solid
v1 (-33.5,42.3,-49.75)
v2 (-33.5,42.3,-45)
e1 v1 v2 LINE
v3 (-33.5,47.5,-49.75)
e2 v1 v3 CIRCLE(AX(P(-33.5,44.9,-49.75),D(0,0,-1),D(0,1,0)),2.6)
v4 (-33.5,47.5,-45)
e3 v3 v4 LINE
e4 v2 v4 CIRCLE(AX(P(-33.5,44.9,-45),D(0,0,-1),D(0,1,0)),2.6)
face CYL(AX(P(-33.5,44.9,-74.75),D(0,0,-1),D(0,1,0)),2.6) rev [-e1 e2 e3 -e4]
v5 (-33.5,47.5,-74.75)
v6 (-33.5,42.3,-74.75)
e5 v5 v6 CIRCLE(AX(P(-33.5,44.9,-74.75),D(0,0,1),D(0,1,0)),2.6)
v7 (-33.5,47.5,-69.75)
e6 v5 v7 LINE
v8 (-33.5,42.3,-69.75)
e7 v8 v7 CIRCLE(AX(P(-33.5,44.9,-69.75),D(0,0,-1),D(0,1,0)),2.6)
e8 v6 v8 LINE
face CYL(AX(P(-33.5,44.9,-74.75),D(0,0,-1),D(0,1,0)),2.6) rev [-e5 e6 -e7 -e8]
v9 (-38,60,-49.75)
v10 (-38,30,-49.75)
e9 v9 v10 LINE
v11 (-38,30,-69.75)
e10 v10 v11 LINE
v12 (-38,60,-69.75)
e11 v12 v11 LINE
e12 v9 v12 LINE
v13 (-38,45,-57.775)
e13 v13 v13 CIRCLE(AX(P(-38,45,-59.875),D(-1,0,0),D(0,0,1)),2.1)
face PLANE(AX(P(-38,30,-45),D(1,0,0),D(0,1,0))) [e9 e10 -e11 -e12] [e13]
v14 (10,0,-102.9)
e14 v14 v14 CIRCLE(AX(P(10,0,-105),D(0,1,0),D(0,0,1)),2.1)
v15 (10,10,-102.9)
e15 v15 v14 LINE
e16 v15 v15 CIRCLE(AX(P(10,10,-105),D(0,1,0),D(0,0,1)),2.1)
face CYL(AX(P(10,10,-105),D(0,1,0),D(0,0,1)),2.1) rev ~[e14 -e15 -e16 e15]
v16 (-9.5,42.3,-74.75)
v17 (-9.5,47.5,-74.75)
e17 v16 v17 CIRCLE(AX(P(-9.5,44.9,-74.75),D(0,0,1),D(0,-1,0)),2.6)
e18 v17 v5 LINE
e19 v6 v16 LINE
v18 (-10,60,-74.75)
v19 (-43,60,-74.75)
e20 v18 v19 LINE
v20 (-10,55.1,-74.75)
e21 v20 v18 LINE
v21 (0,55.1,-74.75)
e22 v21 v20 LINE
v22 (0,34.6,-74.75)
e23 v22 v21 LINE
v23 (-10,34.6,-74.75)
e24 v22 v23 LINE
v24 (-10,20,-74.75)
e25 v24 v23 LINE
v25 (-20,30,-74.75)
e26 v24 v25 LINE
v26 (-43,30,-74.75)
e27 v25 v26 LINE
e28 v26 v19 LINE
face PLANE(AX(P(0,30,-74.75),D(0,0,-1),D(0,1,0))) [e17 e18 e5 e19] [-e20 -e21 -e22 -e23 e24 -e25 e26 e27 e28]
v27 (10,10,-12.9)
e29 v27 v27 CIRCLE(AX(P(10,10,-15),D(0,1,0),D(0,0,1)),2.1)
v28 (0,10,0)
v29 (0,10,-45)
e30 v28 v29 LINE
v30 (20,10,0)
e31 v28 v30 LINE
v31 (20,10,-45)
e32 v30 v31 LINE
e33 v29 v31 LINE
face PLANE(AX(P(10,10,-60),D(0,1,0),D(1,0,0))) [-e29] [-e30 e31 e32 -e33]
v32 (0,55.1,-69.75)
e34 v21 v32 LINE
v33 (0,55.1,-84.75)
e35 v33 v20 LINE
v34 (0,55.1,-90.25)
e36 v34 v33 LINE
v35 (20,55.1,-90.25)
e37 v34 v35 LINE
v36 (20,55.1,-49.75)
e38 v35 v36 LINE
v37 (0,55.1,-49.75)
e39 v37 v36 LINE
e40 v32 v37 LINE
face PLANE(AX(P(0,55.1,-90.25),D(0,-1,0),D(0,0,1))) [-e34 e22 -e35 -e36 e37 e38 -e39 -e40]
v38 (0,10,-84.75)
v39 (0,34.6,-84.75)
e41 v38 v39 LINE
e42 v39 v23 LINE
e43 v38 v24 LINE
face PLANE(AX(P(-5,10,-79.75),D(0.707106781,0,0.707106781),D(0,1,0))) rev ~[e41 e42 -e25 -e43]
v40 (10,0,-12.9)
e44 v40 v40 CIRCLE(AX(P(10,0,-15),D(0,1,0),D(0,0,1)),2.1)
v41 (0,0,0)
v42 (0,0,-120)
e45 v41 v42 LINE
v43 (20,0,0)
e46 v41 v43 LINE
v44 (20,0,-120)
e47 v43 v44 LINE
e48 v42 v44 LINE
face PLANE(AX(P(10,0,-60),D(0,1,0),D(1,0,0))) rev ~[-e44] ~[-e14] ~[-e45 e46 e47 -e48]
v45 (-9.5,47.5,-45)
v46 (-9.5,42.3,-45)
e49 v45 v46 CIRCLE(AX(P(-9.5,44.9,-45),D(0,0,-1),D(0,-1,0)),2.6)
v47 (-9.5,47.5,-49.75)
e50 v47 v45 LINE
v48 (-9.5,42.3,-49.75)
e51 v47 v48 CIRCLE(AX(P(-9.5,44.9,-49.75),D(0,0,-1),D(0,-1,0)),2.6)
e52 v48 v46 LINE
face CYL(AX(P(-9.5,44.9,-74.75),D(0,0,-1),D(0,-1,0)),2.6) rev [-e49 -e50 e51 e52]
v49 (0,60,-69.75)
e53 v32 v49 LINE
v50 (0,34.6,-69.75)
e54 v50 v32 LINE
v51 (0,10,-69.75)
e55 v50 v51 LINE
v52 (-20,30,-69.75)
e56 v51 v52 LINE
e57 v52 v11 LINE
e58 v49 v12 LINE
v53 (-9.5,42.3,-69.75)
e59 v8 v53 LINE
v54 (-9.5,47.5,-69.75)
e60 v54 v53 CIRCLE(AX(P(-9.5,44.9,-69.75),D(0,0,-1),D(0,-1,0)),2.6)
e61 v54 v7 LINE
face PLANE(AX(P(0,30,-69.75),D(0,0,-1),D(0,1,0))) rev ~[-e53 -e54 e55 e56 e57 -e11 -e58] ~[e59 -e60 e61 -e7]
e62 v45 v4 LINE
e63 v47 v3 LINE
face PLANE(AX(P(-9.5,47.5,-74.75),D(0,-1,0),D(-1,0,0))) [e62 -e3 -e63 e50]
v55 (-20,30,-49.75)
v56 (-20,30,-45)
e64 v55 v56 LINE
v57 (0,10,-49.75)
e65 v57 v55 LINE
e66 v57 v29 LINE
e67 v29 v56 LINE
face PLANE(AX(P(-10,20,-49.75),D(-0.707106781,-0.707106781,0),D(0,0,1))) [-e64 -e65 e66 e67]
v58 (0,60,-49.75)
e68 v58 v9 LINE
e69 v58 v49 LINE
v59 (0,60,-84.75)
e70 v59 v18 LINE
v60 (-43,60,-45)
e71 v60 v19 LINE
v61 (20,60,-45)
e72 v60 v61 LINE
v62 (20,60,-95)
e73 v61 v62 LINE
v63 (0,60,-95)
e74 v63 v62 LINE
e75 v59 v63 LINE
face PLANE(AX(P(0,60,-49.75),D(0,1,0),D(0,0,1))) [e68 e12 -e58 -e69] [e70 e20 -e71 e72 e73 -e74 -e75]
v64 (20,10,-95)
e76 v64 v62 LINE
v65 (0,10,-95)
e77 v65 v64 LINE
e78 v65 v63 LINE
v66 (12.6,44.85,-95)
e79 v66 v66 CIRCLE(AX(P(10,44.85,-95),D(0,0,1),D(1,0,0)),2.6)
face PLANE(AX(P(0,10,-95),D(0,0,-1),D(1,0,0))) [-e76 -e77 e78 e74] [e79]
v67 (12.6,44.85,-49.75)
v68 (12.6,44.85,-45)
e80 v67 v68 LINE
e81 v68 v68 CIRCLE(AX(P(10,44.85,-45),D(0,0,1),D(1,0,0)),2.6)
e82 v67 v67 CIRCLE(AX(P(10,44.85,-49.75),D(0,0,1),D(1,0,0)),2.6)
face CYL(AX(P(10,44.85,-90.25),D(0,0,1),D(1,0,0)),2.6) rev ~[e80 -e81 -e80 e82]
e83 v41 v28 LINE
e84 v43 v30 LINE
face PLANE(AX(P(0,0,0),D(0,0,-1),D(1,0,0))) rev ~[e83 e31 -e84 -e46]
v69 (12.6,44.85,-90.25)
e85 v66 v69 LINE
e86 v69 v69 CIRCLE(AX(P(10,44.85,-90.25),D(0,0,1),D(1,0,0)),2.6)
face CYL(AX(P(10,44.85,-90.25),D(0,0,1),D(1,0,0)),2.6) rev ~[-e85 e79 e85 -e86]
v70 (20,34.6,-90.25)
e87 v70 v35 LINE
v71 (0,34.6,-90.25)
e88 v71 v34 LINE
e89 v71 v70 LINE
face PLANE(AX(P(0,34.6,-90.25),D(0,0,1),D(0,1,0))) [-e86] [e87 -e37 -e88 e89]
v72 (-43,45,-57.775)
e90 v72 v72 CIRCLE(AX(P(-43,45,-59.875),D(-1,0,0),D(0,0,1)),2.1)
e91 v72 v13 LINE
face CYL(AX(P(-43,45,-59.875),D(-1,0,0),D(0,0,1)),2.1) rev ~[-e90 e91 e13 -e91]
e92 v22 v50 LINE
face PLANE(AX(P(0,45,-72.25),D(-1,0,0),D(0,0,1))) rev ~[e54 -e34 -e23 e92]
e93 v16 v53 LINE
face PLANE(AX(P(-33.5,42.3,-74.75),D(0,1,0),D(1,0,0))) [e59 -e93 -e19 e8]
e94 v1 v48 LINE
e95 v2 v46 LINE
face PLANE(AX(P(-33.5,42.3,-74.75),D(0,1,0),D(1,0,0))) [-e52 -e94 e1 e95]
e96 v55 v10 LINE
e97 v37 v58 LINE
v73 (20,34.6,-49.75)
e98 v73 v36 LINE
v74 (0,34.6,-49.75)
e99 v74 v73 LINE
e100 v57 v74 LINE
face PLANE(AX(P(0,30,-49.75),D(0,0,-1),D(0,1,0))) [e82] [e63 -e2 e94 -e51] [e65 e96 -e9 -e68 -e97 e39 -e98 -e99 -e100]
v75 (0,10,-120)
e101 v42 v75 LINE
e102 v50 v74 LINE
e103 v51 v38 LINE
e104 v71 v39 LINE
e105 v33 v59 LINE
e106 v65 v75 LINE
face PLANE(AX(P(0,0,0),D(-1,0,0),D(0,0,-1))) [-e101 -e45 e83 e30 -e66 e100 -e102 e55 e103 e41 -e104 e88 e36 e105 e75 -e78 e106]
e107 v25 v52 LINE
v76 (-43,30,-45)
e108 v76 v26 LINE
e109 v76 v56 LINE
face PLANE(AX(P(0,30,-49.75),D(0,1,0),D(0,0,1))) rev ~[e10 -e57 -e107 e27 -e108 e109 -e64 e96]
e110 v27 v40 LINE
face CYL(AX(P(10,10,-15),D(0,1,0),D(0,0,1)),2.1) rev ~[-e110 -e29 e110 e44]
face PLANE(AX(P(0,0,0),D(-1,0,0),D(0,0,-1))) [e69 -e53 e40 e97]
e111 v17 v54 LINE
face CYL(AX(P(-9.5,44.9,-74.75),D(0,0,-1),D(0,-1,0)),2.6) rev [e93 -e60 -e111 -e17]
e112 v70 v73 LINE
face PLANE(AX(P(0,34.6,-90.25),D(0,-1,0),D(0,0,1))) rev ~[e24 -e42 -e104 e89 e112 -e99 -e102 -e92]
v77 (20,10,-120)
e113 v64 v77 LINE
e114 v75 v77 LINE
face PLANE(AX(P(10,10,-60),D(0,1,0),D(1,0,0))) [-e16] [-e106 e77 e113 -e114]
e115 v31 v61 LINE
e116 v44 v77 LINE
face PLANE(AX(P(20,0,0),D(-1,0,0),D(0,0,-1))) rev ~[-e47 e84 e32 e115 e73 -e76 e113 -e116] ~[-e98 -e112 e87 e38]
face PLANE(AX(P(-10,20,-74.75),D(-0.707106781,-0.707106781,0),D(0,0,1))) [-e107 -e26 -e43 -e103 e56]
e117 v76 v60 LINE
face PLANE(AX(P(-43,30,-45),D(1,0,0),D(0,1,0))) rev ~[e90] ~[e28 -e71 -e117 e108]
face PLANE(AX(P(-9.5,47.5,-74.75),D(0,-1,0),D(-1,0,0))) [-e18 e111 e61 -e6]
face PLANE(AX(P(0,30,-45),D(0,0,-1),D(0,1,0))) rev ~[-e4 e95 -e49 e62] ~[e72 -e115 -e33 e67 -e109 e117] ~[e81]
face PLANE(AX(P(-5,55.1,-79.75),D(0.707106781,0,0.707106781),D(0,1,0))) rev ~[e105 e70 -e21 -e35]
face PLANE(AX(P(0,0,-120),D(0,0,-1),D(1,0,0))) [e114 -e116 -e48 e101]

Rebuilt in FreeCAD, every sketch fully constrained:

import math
import FreeCAD as App
import Part
import Sketcher
from FreeCAD import Vector


def edges_at(feature, points):
    """Names of the edges that pass closest to the given points."""
    edges = feature.Shape.Edges
    near = lambda p: min(range(len(edges)), key=lambda i: edges[i].distToShape(Part.Vertex(*p))[0])
    return sorted({f"Edge{near(p) + 1}" for p in points})

doc = App.newDocument("Part")
body = doc.addObject("PartDesign::Body", "Body")

# Sketch on XZ plane
sketch1 = body.newObject("Sketcher::SketchObject", "Sketch")
sketch1.AttachmentSupport = (doc.getObject("XZ_Plane"), [""])
sketch1.MapMode = "FlatFace"
sketch1.addGeometry([
    Part.LineSegment(Vector(0, -120, 0), Vector(0, 0, 0)),
    Part.LineSegment(Vector(0, 0, 0), Vector(20, 0, 0)),
    Part.LineSegment(Vector(20, 0, 0), Vector(20, -120, 0)),
    Part.LineSegment(Vector(20, -120, 0), Vector(0, -120, 0)),
], False)
sketch1.addConstraint([
    Sketcher.Constraint("Coincident", 0, 2, 1, 1),
    Sketcher.Constraint("Coincident", 1, 2, 2, 1),
    Sketcher.Constraint("Coincident", 2, 2, 3, 1),
    Sketcher.Constraint("Coincident", 3, 2, 0, 1),
    Sketcher.Constraint("Vertical", 0),
    Sketcher.Constraint("Horizontal", 1),
    Sketcher.Constraint("Vertical", 2),
    Sketcher.Constraint("Horizontal", 3),
    Sketcher.Constraint("Coincident", 0, 2, -1, 1),
    Sketcher.Constraint("DistanceX", 1, 1, 1, 2, 20.0),
    Sketcher.Constraint("DistanceY", 0, 1, 0, 2, 120.0),
])
pad1 = body.newObject("PartDesign::Pad", "Pad")
pad1.Profile = sketch1
pad1.Length = 10
pad1.Reversed = True

# Sketch on XZ plane
sketch2 = body.newObject("Sketcher::SketchObject", "Sketch001")
sketch2.AttachmentSupport = (doc.getObject("XZ_Plane"), [""])
sketch2.MapMode = "FlatFace"
sketch2.AttachmentOffset = App.Placement(Vector(0, 0, -10), App.Rotation())
sketch2.addGeometry([
    Part.Circle(Vector(10, -105, 0), Vector(0, 0, 1), 2.1),
    Part.Circle(Vector(10, -15, 0), Vector(0, 0, 1), 2.1),
], False)
sketch2.addConstraint([
    Sketcher.Constraint("Equal", 0, 1),
    Sketcher.Constraint("Vertical", 0, 3, 1, 3),
    Sketcher.Constraint("Diameter", 0, 4.2),
    Sketcher.Constraint("DistanceX", -1, 1, 0, 3, 10.0),
    Sketcher.Constraint("DistanceY", 0, 3, -1, 1, 105.0),
    Sketcher.Constraint("DistanceY", 1, 3, -1, 1, 15.0),
])
pocket1 = body.newObject("PartDesign::Pocket", "Pocket")
pocket1.Profile = sketch2
pocket1.Length = 10
pocket1.Reversed = True

# Sketch on XZ plane
sketch3 = body.newObject("Sketcher::SketchObject", "Sketch002")
sketch3.AttachmentSupport = (doc.getObject("XZ_Plane"), [""])
sketch3.MapMode = "FlatFace"
sketch3.AttachmentOffset = App.Placement(Vector(0, 0, -10), App.Rotation())
sketch3.addGeometry([
    Part.LineSegment(Vector(0, -95, 0), Vector(0, -45, 0)),
    Part.LineSegment(Vector(0, -45, 0), Vector(20, -45, 0)),
    Part.LineSegment(Vector(20, -45, 0), Vector(20, -95, 0)),
    Part.LineSegment(Vector(20, -95, 0), Vector(0, -95, 0)),
], False)
sketch3.addConstraint([
    Sketcher.Constraint("Coincident", 0, 2, 1, 1),
    Sketcher.Constraint("Coincident", 1, 2, 2, 1),
    Sketcher.Constraint("Coincident", 2, 2, 3, 1),
    Sketcher.Constraint("Coincident", 3, 2, 0, 1),
    Sketcher.Constraint("Vertical", 0),
    Sketcher.Constraint("Horizontal", 1),
    Sketcher.Constraint("Vertical", 2),
    Sketcher.Constraint("Horizontal", 3),
    Sketcher.Constraint("PointOnObject", 0, 2, -2),
    Sketcher.Constraint("DistanceX", 1, 1, 1, 2, 20.0),
    Sketcher.Constraint("DistanceY", 0, 1, 0, 2, 50.0),
    Sketcher.Constraint("DistanceY", 0, 2, -1, 1, 45.0),
])
pad2 = body.newObject("PartDesign::Pad", "Pad001")
pad2.Profile = sketch3
pad2.Length = 50
pad2.Reversed = True

# Sketch on YZ plane
sketch4 = body.newObject("Sketcher::SketchObject", "Sketch003")
sketch4.AttachmentSupport = (doc.getObject("YZ_Plane"), [""])
sketch4.MapMode = "FlatFace"
sketch4.addGeometry([
    Part.LineSegment(Vector(55, -90, 0), Vector(35, -90, 0)),
    Part.LineSegment(Vector(35, -90, 0), Vector(35, -50, 0)),
    Part.LineSegment(Vector(35, -50, 0), Vector(55, -50, 0)),
    Part.LineSegment(Vector(55, -50, 0), Vector(55, -90, 0)),
], False)
sketch4.addConstraint([
    Sketcher.Constraint("Coincident", 0, 2, 1, 1),
    Sketcher.Constraint("Coincident", 1, 2, 2, 1),
    Sketcher.Constraint("Coincident", 2, 2, 3, 1),
    Sketcher.Constraint("Coincident", 3, 2, 0, 1),
    Sketcher.Constraint("Horizontal", 0),
    Sketcher.Constraint("Vertical", 1),
    Sketcher.Constraint("Horizontal", 2),
    Sketcher.Constraint("Vertical", 3),
    Sketcher.Constraint("DistanceX", 0, 2, 0, 1, 20.5),
    Sketcher.Constraint("DistanceY", 1, 1, 1, 2, 40.5),
    Sketcher.Constraint("DistanceX", -1, 1, 0, 2, 34.6),
    Sketcher.Constraint("DistanceY", 0, 2, -1, 1, 90.25),
])
pocket2 = body.newObject("PartDesign::Pocket", "Pocket001")
pocket2.Profile = sketch4
pocket2.Length = 20
pocket2.Reversed = True

# Sketch on XY plane
sketch5 = body.newObject("Sketcher::SketchObject", "Sketch004")
sketch5.AttachmentSupport = (doc.getObject("XY_Plane"), [""])
sketch5.MapMode = "FlatFace"
sketch5.AttachmentOffset = App.Placement(Vector(0, 0, -90.25), App.Rotation())
sketch5.addGeometry(Part.Circle(Vector(10, 44.9, 0), Vector(0, 0, 1), 2.6), False)
sketch5.addConstraint([
    Sketcher.Constraint("Diameter", 0, 5.2),
    Sketcher.Constraint("DistanceX", -1, 1, 0, 3, 10.0),
    Sketcher.Constraint("DistanceY", -1, 1, 0, 3, 44.85),
])
pocket3 = body.newObject("PartDesign::Pocket", "Pocket002")
pocket3.Profile = sketch5
pocket3.Length = 100
pocket3.Midplane = True

# Sketch on YZ plane
sketch6 = body.newObject("Sketcher::SketchObject", "Sketch005")
sketch6.AttachmentSupport = (doc.getObject("YZ_Plane"), [""])
sketch6.MapMode = "FlatFace"
sketch6.addGeometry([
    Part.LineSegment(Vector(60, -49.8, 0), Vector(30, -49.8, 0)),  # 0
    Part.LineSegment(Vector(30, -49.8, 0), Vector(30, -45, 0)),  # 1
    Part.LineSegment(Vector(30, -45, 0), Vector(60, -45, 0)),  # 2
    Part.LineSegment(Vector(60, -45, 0), Vector(60, -49.8, 0)),  # 3
    Part.LineSegment(Vector(60, -74.8, 0), Vector(30, -74.8, 0)),  # 4
    Part.LineSegment(Vector(30, -74.8, 0), Vector(30, -69.8, 0)),  # 5
    Part.LineSegment(Vector(30, -69.8, 0), Vector(60, -69.8, 0)),  # 6
    Part.LineSegment(Vector(60, -69.8, 0), Vector(60, -74.8, 0)),  # 7
], False)
sketch6.addConstraint([
    Sketcher.Constraint("Coincident", 0, 2, 1, 1),
    Sketcher.Constraint("Coincident", 1, 2, 2, 1),
    Sketcher.Constraint("Coincident", 2, 2, 3, 1),
    Sketcher.Constraint("Coincident", 3, 2, 0, 1),
    Sketcher.Constraint("Coincident", 4, 2, 5, 1),
    Sketcher.Constraint("Coincident", 5, 2, 6, 1),
    Sketcher.Constraint("Coincident", 6, 2, 7, 1),
    Sketcher.Constraint("Coincident", 7, 2, 4, 1),
    Sketcher.Constraint("Horizontal", 0),
    Sketcher.Constraint("Vertical", 1),
    Sketcher.Constraint("Horizontal", 2),
    Sketcher.Constraint("Vertical", 3),
    Sketcher.Constraint("Horizontal", 4),
    Sketcher.Constraint("Vertical", 5),
    Sketcher.Constraint("Horizontal", 6),
    Sketcher.Constraint("Vertical", 7),
    Sketcher.Constraint("Vertical", 1, 2, 4, 2),
    Sketcher.Constraint("Vertical", 3, 2, 6, 2),
    Sketcher.Constraint("DistanceX", 0, 2, 0, 1, 30.0),
    Sketcher.Constraint("DistanceY", 5, 1, 5, 2, 5.0),
    Sketcher.Constraint("DistanceX", -1, 1, 0, 2, 30.0),
    Sketcher.Constraint("DistanceY", 1, 2, -1, 1, 45.0),
    Sketcher.Constraint("DistanceY", 4, 2, 0, 2, 25.0),
    Sketcher.Constraint("DistanceY", 1, 1, 1, 2, 4.75),
])
pad3 = body.newObject("PartDesign::Pad", "Pad002")
pad3.Profile = sketch6
pad3.Length = 40
pad3.Reversed = True

# Sketch on XY plane
sketch7 = body.newObject("Sketcher::SketchObject", "Sketch006")
sketch7.AttachmentSupport = (doc.getObject("XY_Plane"), [""])
sketch7.MapMode = "FlatFace"
sketch7.AttachmentOffset = App.Placement(Vector(0, 0, -74.75), App.Rotation())
sketch7.addGeometry([
    Part.LineSegment(Vector(-9.5, 42.3, 0), Vector(-33.5, 42.3, 0)),
    Part.ArcOfCircle(Part.Circle(Vector(-33.5, 44.9, 0), Vector(0, 0, 1), 2.6), math.radians(90), math.radians(270)),
    Part.LineSegment(Vector(-33.5, 47.5, 0), Vector(-9.5, 47.5, 0)),
    Part.ArcOfCircle(Part.Circle(Vector(-9.5, 44.9, 0), Vector(0, 0, 1), 2.6), math.radians(-90), math.radians(90)),
], False)
sketch7.addConstraint([
    Sketcher.Constraint("Tangent", 0, 2, 1, 2),
    Sketcher.Constraint("Tangent", 1, 1, 2, 1),
    Sketcher.Constraint("Tangent", 2, 2, 3, 2),
    Sketcher.Constraint("Tangent", 3, 1, 0, 1),
    Sketcher.Constraint("Horizontal", 0),
    Sketcher.Constraint("Horizontal", 2),
    Sketcher.Constraint("Radius", 1, 2.6),
    Sketcher.Constraint("DistanceX", 0, 2, 0, 1, 24.0),
    Sketcher.Constraint("DistanceX", 1, 3, -1, 1, 33.5),
    Sketcher.Constraint("DistanceY", -1, 1, 1, 3, 44.9),
])
pocket4 = body.newObject("PartDesign::Pocket", "Pocket003")
pocket4.Profile = sketch7
pocket4.Length = 40
pocket4.Reversed = True

# Sketch on XY plane
sketch8 = body.newObject("Sketcher::SketchObject", "Sketch007")
sketch8.AttachmentSupport = (doc.getObject("XY_Plane"), [""])
sketch8.MapMode = "FlatFace"
sketch8.AttachmentOffset = App.Placement(Vector(0, 0, -45), App.Rotation())
sketch8.addGeometry([
    Part.LineSegment(Vector(-38, 60, 0), Vector(-38, 30, 0)),
    Part.LineSegment(Vector(-38, 30, 0), Vector(-43, 30, 0)),
    Part.LineSegment(Vector(-43, 30, 0), Vector(-43, 60, 0)),
    Part.LineSegment(Vector(-43, 60, 0), Vector(-38, 60, 0)),
], False)
sketch8.addConstraint([
    Sketcher.Constraint("Coincident", 0, 2, 1, 1),
    Sketcher.Constraint("Coincident", 1, 2, 2, 1),
    Sketcher.Constraint("Coincident", 2, 2, 3, 1),
    Sketcher.Constraint("Coincident", 3, 2, 0, 1),
    Sketcher.Constraint("Vertical", 0),
    Sketcher.Constraint("Horizontal", 1),
    Sketcher.Constraint("Vertical", 2),
    Sketcher.Constraint("Horizontal", 3),
    Sketcher.Constraint("DistanceX", 1, 2, 1, 1, 5.0),
    Sketcher.Constraint("DistanceY", 0, 2, 0, 1, 30.0),
    Sketcher.Constraint("DistanceX", 0, 2, -1, 1, 38.0),
    Sketcher.Constraint("DistanceY", -1, 1, 0, 2, 30.0),
])
pad4 = body.newObject("PartDesign::Pad", "Pad003")
pad4.Profile = sketch8
pad4.Length = 29.75
pad4.Reversed = True

# Sketch on YZ plane
sketch9 = body.newObject("Sketcher::SketchObject", "Sketch008")
sketch9.AttachmentSupport = (doc.getObject("YZ_Plane"), [""])
sketch9.MapMode = "FlatFace"
sketch9.AttachmentOffset = App.Placement(Vector(0, 0, -43), App.Rotation())
sketch9.addGeometry(Part.Circle(Vector(45, -59.9, 0), Vector(0, 0, 1), 2.1), False)
sketch9.addConstraint([
    Sketcher.Constraint("Diameter", 0, 4.2),
    Sketcher.Constraint("DistanceX", -1, 1, 0, 3, 45.0),
    Sketcher.Constraint("DistanceY", 0, 3, -1, 1, 59.875),
])
pocket5 = body.newObject("PartDesign::Pocket", "Pocket004")
pocket5.Profile = sketch9
pocket5.Length = 5
pocket5.Reversed = True
doc.recompute()

chamfer = body.newObject("PartDesign::Chamfer", "Chamfer")
chamfer.Base = (pocket5, edges_at(pocket5, [(0, 30, -47.375), (0, 30, -72.25)]))
chamfer.Size = 20
doc.recompute()

chamfer2 = body.newObject("PartDesign::Chamfer", "Chamfer001")
chamfer2.Base = (chamfer, edges_at(chamfer, [(0, 57.55, -74.75), (0, 22.3, -74.75)]))
chamfer2.Size = 10

doc.recompute()
